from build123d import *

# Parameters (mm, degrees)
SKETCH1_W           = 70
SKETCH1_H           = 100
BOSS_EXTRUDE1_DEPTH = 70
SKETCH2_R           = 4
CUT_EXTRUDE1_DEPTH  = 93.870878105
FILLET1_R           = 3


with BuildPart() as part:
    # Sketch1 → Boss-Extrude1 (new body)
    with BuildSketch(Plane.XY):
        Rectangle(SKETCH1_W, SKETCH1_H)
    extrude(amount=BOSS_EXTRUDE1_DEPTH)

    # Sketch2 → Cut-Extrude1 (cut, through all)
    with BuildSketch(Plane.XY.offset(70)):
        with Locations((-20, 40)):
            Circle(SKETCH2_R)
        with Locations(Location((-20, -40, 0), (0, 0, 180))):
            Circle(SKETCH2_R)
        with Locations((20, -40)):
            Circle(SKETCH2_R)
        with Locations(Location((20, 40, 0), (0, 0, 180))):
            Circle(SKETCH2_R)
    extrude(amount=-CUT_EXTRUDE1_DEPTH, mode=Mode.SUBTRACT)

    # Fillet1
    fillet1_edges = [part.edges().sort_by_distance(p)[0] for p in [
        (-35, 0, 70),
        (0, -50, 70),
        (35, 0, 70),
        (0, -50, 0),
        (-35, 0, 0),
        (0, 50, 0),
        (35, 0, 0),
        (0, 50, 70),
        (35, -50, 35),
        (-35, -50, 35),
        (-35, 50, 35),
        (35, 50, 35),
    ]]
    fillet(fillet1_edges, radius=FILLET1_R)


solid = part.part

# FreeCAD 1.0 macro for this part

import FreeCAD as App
import Part
import Sketcher
Q = App.Units.Quantity


def edges_at(feature, points):
    """Names of the edges that pass closest to the given points."""
    edges = feature.Shape.Edges
    near = lambda p: min(range(len(edges)), key=lambda i: edges[i].distToShape(Part.Vertex(*p))[0])
    return sorted({f"Edge{near(p) + 1}" for p in points})

doc = App.newDocument("Part")
body = doc.addObject("PartDesign::Body", "Body")

# Sketch on XY plane
sketch1 = body.newObject("Sketcher::SketchObject", "Sketch")
sketch1.AttachmentSupport = (doc.getObject("XY_Plane"), [""])
sketch1.MapMode = "FlatFace"
sketch1.addGeometry(Part.LineSegment(App.Vector(-35, 50, 0), App.Vector(-35, -50, 0)), False)
sketch1.addGeometry(Part.LineSegment(App.Vector(-35, -50, 0), App.Vector(35, -50, 0)), False)
sketch1.addGeometry(Part.LineSegment(App.Vector(35, -50, 0), App.Vector(35, 50, 0)), False)
sketch1.addGeometry(Part.LineSegment(App.Vector(35, 50, 0), App.Vector(-35, 50, 0)), False)
sketch1.addConstraint(Sketcher.Constraint("Coincident", 0, 2, 1, 1))
sketch1.addConstraint(Sketcher.Constraint("Coincident", 1, 2, 2, 1))
sketch1.addConstraint(Sketcher.Constraint("Coincident", 2, 2, 3, 1))
sketch1.addConstraint(Sketcher.Constraint("Coincident", 3, 2, 0, 1))
sketch1.addConstraint(Sketcher.Constraint("Vertical", 0))
sketch1.addConstraint(Sketcher.Constraint("Horizontal", 1))
sketch1.addConstraint(Sketcher.Constraint("Vertical", 2))
sketch1.addConstraint(Sketcher.Constraint("Horizontal", 3))
sketch1.addConstraint(Sketcher.Constraint("Symmetric", 0, 2, 2, 2, -1, 1))
sketch1.addConstraint(Sketcher.Constraint("DistanceX", 1, 1, 1, 2, Q("70 mm")))
sketch1.addConstraint(Sketcher.Constraint("DistanceY", 0, 2, 0, 1, Q("100 mm")))
pad1 = body.newObject("PartDesign::Pad", "Pad")
pad1.Profile = sketch1
pad1.Length = 70

# Sketch on XY plane
sketch2 = body.newObject("Sketcher::SketchObject", "Sketch001")
sketch2.AttachmentSupport = (doc.getObject("XY_Plane"), [""])
sketch2.MapMode = "FlatFace"
sketch2.AttachmentOffset = App.Placement(App.Vector(0, 0, 70), App.Rotation())
sketch2.addGeometry(Part.Circle(App.Vector(-20, 40, 0), App.Vector(0, 0, 1), 4), False)
sketch2.addGeometry(Part.Circle(App.Vector(-20, -40, 0), App.Vector(0, 0, 1), 4), False)
sketch2.addGeometry(Part.Circle(App.Vector(20, -40, 0), App.Vector(0, 0, 1), 4), False)
sketch2.addGeometry(Part.Circle(App.Vector(20, 40, 0), App.Vector(0, 0, 1), 4), False)
sketch2.addConstraint(Sketcher.Constraint("Equal", 0, 1))
sketch2.addConstraint(Sketcher.Constraint("Equal", 1, 2))
sketch2.addConstraint(Sketcher.Constraint("Equal", 2, 3))
sketch2.addConstraint(Sketcher.Constraint("Symmetric", 0, 3, 2, 3, -1, 1))
sketch2.addConstraint(Sketcher.Constraint("Symmetric", 1, 3, 3, 3, -1, 1))
sketch2.addConstraint(Sketcher.Constraint("Symmetric", 1, 3, 2, 3, -2))
sketch2.addConstraint(Sketcher.Constraint("Diameter", 0, Q("8 mm")))
sketch2.addConstraint(Sketcher.Constraint("DistanceX", 0, 3, -1, 1, Q("20 mm")))
sketch2.addConstraint(Sketcher.Constraint("DistanceY", -1, 1, 0, 3, Q("40 mm")))
pocket1 = body.newObject("PartDesign::Pocket", "Pocket")
pocket1.Profile = sketch2
pocket1.Type = "ThroughAll"
doc.recompute()

fillet = body.newObject("PartDesign::Fillet", "Fillet")
fillet.Base = (pocket1, edges_at(pocket1, [
    (-35, 0, 70),
    (0, -50, 70),
    (35, 0, 70),
    (0, -50, 0),
    (-35, 0, 0),
    (0, 50, 0),
    (35, 0, 0),
    (0, 50, 70),
    (35, -50, 35),
    (-35, -50, 35),
    (-35, 50, 35),
    (35, 50, 35),
]))
fillet.Radius = 3

doc.recompute()
